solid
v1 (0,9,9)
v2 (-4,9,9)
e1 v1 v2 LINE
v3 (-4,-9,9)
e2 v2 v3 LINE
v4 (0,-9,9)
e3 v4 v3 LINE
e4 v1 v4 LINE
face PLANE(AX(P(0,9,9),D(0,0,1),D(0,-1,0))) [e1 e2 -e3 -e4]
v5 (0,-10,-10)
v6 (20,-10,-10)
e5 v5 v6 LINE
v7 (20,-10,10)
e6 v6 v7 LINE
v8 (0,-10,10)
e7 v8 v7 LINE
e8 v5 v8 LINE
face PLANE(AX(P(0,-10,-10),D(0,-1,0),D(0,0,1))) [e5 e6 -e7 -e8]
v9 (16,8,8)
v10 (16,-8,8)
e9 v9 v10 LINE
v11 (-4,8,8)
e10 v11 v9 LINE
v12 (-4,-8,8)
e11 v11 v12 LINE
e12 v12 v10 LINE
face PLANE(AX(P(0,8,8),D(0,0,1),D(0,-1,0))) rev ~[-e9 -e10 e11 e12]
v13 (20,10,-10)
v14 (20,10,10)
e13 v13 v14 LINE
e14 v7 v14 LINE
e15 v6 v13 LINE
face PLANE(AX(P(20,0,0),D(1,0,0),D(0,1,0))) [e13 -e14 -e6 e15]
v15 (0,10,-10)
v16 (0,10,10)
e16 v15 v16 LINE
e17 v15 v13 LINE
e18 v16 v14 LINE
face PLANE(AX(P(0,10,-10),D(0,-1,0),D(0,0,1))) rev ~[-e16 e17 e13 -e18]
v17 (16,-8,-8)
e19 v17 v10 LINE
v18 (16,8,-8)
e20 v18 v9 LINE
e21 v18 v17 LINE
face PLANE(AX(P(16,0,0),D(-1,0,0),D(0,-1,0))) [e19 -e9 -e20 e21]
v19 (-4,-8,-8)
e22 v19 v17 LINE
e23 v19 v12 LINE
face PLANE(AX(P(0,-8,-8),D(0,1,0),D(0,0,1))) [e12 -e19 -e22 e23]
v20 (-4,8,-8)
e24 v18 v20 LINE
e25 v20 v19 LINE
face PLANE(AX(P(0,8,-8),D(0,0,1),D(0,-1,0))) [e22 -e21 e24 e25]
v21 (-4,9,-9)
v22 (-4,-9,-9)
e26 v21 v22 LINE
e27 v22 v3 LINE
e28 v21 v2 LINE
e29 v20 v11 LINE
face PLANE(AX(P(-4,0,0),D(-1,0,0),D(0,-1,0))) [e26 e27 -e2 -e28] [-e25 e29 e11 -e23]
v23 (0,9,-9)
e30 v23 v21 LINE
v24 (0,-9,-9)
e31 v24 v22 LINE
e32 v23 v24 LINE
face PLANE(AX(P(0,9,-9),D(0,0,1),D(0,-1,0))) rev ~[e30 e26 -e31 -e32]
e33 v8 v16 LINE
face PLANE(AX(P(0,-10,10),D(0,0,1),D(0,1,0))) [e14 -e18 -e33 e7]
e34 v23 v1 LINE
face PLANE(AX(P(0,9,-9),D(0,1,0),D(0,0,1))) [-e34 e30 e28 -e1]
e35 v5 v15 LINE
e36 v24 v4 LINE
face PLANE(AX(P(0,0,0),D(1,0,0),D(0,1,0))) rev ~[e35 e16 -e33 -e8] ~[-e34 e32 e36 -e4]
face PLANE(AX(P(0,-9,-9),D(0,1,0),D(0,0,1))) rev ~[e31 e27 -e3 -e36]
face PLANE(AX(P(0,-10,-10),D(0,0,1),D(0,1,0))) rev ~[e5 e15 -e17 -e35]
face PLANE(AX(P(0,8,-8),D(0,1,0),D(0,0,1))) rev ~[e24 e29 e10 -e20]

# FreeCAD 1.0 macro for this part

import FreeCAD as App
import Part
import Sketcher
Q = App.Units.Quantity


def add_polygon(sketch, points):
    """Adds a closed chain of lines whose ends are joined by coincident constraints."""
    first, n = sketch.GeometryCount, len(points)
    for a, b in zip(points, points[1:] + points[:1]):
        sketch.addGeometry(Part.LineSegment(App.Vector(*a, 0), App.Vector(*b, 0)), False)
    for i in range(n):
        sketch.addConstraint(Sketcher.Constraint("Coincident", first + i, 2, first + (i + 1) % n, 1))

doc = App.newDocument("Part")
body = doc.addObject("PartDesign::Body", "Body")

# Sketch on YZ plane
sketch1 = body.newObject("Sketcher::SketchObject", "Sketch")
sketch1.AttachmentSupport = (doc.getObject("YZ_Plane"), [""])
sketch1.MapMode = "FlatFace"
add_polygon(sketch1, [(-10, 10), (-10, -10), (10, -10), (10, 10)])  # lines 0-3
sketch1.addConstraint([
    Sketcher.Constraint("Vertical", 0),
    Sketcher.Constraint("Horizontal", 1),
    Sketcher.Constraint("Vertical", 2),
    Sketcher.Constraint("Horizontal", 3),
    Sketcher.Constraint("Symmetric", 0, 2, 2, 2, -1, 1),
    Sketcher.Constraint("Equal", 3, 0),
    Sketcher.Constraint("DistanceX", 1, 1, 1, 2, Q("20 mm")),
])
pad1 = body.newObject("PartDesign::Pad", "Pad")
pad1.Profile = sketch1
pad1.Length = 20

# Sketch on YZ plane
sketch2 = body.newObject("Sketcher::SketchObject", "Sketch001")
sketch2.AttachmentSupport = (doc.getObject("YZ_Plane"), [""])
sketch2.MapMode = "FlatFace"
add_polygon(sketch2, [(8, 8), (8, -8), (-8, -8), (-8, 8)])  # lines 0-3
sketch2.addConstraint([
    Sketcher.Constraint("Vertical", 0),
    Sketcher.Constraint("Horizontal", 1),
    Sketcher.Constraint("Vertical", 2),
    Sketcher.Constraint("Horizontal", 3),
    Sketcher.Constraint("Symmetric", 0, 2, 2, 2, -1, 1),
    Sketcher.Constraint("Equal", 3, 0),
    Sketcher.Constraint("DistanceX", 1, 2, 1, 1, Q("16 mm")),
])
pocket1 = body.newObject("PartDesign::Pocket", "Pocket")
pocket1.Profile = sketch2
pocket1.Length = 16
pocket1.Reversed = True

# Sketch on YZ plane
sketch3 = body.newObject("Sketcher::SketchObject", "Sketch002")
sketch3.AttachmentSupport = (doc.getObject("YZ_Plane"), [""])
sketch3.MapMode = "FlatFace"
add_polygon(sketch3, [(9, 9), (9, -9), (-9, -9), (-9, 9)])  # lines 0-3
add_polygon(sketch3, [(-8, -8), (8, -8), (8, 8), (-8, 8)])  # lines 4-7
sketch3.addConstraint([
    Sketcher.Constraint("Vertical", 0),
    Sketcher.Constraint("Horizontal", 1),
    Sketcher.Constraint("Vertical", 2),
    Sketcher.Constraint("Horizontal", 3),
    Sketcher.Constraint("Horizontal", 4),
    Sketcher.Constraint("Vertical", 5),
    Sketcher.Constraint("Horizontal", 6),
    Sketcher.Constraint("Vertical", 7),
    Sketcher.Constraint("Symmetric", 0, 2, 2, 2, -1, 1),
    Sketcher.Constraint("Symmetric", 4, 2, 6, 2, -1, 1),
    Sketcher.Constraint("Equal", 3, 0),
    Sketcher.Constraint("Equal", 6, 5),
    Sketcher.Constraint("DistanceX", 1, 2, 1, 1, Q("18 mm")),
    Sketcher.Constraint("DistanceX", 4, 1, 4, 2, Q("16 mm")),
])
pad2 = body.newObject("PartDesign::Pad", "Pad001")
pad2.Profile = sketch3
pad2.Length = 4
pad2.Reversed = True

doc.recompute()
